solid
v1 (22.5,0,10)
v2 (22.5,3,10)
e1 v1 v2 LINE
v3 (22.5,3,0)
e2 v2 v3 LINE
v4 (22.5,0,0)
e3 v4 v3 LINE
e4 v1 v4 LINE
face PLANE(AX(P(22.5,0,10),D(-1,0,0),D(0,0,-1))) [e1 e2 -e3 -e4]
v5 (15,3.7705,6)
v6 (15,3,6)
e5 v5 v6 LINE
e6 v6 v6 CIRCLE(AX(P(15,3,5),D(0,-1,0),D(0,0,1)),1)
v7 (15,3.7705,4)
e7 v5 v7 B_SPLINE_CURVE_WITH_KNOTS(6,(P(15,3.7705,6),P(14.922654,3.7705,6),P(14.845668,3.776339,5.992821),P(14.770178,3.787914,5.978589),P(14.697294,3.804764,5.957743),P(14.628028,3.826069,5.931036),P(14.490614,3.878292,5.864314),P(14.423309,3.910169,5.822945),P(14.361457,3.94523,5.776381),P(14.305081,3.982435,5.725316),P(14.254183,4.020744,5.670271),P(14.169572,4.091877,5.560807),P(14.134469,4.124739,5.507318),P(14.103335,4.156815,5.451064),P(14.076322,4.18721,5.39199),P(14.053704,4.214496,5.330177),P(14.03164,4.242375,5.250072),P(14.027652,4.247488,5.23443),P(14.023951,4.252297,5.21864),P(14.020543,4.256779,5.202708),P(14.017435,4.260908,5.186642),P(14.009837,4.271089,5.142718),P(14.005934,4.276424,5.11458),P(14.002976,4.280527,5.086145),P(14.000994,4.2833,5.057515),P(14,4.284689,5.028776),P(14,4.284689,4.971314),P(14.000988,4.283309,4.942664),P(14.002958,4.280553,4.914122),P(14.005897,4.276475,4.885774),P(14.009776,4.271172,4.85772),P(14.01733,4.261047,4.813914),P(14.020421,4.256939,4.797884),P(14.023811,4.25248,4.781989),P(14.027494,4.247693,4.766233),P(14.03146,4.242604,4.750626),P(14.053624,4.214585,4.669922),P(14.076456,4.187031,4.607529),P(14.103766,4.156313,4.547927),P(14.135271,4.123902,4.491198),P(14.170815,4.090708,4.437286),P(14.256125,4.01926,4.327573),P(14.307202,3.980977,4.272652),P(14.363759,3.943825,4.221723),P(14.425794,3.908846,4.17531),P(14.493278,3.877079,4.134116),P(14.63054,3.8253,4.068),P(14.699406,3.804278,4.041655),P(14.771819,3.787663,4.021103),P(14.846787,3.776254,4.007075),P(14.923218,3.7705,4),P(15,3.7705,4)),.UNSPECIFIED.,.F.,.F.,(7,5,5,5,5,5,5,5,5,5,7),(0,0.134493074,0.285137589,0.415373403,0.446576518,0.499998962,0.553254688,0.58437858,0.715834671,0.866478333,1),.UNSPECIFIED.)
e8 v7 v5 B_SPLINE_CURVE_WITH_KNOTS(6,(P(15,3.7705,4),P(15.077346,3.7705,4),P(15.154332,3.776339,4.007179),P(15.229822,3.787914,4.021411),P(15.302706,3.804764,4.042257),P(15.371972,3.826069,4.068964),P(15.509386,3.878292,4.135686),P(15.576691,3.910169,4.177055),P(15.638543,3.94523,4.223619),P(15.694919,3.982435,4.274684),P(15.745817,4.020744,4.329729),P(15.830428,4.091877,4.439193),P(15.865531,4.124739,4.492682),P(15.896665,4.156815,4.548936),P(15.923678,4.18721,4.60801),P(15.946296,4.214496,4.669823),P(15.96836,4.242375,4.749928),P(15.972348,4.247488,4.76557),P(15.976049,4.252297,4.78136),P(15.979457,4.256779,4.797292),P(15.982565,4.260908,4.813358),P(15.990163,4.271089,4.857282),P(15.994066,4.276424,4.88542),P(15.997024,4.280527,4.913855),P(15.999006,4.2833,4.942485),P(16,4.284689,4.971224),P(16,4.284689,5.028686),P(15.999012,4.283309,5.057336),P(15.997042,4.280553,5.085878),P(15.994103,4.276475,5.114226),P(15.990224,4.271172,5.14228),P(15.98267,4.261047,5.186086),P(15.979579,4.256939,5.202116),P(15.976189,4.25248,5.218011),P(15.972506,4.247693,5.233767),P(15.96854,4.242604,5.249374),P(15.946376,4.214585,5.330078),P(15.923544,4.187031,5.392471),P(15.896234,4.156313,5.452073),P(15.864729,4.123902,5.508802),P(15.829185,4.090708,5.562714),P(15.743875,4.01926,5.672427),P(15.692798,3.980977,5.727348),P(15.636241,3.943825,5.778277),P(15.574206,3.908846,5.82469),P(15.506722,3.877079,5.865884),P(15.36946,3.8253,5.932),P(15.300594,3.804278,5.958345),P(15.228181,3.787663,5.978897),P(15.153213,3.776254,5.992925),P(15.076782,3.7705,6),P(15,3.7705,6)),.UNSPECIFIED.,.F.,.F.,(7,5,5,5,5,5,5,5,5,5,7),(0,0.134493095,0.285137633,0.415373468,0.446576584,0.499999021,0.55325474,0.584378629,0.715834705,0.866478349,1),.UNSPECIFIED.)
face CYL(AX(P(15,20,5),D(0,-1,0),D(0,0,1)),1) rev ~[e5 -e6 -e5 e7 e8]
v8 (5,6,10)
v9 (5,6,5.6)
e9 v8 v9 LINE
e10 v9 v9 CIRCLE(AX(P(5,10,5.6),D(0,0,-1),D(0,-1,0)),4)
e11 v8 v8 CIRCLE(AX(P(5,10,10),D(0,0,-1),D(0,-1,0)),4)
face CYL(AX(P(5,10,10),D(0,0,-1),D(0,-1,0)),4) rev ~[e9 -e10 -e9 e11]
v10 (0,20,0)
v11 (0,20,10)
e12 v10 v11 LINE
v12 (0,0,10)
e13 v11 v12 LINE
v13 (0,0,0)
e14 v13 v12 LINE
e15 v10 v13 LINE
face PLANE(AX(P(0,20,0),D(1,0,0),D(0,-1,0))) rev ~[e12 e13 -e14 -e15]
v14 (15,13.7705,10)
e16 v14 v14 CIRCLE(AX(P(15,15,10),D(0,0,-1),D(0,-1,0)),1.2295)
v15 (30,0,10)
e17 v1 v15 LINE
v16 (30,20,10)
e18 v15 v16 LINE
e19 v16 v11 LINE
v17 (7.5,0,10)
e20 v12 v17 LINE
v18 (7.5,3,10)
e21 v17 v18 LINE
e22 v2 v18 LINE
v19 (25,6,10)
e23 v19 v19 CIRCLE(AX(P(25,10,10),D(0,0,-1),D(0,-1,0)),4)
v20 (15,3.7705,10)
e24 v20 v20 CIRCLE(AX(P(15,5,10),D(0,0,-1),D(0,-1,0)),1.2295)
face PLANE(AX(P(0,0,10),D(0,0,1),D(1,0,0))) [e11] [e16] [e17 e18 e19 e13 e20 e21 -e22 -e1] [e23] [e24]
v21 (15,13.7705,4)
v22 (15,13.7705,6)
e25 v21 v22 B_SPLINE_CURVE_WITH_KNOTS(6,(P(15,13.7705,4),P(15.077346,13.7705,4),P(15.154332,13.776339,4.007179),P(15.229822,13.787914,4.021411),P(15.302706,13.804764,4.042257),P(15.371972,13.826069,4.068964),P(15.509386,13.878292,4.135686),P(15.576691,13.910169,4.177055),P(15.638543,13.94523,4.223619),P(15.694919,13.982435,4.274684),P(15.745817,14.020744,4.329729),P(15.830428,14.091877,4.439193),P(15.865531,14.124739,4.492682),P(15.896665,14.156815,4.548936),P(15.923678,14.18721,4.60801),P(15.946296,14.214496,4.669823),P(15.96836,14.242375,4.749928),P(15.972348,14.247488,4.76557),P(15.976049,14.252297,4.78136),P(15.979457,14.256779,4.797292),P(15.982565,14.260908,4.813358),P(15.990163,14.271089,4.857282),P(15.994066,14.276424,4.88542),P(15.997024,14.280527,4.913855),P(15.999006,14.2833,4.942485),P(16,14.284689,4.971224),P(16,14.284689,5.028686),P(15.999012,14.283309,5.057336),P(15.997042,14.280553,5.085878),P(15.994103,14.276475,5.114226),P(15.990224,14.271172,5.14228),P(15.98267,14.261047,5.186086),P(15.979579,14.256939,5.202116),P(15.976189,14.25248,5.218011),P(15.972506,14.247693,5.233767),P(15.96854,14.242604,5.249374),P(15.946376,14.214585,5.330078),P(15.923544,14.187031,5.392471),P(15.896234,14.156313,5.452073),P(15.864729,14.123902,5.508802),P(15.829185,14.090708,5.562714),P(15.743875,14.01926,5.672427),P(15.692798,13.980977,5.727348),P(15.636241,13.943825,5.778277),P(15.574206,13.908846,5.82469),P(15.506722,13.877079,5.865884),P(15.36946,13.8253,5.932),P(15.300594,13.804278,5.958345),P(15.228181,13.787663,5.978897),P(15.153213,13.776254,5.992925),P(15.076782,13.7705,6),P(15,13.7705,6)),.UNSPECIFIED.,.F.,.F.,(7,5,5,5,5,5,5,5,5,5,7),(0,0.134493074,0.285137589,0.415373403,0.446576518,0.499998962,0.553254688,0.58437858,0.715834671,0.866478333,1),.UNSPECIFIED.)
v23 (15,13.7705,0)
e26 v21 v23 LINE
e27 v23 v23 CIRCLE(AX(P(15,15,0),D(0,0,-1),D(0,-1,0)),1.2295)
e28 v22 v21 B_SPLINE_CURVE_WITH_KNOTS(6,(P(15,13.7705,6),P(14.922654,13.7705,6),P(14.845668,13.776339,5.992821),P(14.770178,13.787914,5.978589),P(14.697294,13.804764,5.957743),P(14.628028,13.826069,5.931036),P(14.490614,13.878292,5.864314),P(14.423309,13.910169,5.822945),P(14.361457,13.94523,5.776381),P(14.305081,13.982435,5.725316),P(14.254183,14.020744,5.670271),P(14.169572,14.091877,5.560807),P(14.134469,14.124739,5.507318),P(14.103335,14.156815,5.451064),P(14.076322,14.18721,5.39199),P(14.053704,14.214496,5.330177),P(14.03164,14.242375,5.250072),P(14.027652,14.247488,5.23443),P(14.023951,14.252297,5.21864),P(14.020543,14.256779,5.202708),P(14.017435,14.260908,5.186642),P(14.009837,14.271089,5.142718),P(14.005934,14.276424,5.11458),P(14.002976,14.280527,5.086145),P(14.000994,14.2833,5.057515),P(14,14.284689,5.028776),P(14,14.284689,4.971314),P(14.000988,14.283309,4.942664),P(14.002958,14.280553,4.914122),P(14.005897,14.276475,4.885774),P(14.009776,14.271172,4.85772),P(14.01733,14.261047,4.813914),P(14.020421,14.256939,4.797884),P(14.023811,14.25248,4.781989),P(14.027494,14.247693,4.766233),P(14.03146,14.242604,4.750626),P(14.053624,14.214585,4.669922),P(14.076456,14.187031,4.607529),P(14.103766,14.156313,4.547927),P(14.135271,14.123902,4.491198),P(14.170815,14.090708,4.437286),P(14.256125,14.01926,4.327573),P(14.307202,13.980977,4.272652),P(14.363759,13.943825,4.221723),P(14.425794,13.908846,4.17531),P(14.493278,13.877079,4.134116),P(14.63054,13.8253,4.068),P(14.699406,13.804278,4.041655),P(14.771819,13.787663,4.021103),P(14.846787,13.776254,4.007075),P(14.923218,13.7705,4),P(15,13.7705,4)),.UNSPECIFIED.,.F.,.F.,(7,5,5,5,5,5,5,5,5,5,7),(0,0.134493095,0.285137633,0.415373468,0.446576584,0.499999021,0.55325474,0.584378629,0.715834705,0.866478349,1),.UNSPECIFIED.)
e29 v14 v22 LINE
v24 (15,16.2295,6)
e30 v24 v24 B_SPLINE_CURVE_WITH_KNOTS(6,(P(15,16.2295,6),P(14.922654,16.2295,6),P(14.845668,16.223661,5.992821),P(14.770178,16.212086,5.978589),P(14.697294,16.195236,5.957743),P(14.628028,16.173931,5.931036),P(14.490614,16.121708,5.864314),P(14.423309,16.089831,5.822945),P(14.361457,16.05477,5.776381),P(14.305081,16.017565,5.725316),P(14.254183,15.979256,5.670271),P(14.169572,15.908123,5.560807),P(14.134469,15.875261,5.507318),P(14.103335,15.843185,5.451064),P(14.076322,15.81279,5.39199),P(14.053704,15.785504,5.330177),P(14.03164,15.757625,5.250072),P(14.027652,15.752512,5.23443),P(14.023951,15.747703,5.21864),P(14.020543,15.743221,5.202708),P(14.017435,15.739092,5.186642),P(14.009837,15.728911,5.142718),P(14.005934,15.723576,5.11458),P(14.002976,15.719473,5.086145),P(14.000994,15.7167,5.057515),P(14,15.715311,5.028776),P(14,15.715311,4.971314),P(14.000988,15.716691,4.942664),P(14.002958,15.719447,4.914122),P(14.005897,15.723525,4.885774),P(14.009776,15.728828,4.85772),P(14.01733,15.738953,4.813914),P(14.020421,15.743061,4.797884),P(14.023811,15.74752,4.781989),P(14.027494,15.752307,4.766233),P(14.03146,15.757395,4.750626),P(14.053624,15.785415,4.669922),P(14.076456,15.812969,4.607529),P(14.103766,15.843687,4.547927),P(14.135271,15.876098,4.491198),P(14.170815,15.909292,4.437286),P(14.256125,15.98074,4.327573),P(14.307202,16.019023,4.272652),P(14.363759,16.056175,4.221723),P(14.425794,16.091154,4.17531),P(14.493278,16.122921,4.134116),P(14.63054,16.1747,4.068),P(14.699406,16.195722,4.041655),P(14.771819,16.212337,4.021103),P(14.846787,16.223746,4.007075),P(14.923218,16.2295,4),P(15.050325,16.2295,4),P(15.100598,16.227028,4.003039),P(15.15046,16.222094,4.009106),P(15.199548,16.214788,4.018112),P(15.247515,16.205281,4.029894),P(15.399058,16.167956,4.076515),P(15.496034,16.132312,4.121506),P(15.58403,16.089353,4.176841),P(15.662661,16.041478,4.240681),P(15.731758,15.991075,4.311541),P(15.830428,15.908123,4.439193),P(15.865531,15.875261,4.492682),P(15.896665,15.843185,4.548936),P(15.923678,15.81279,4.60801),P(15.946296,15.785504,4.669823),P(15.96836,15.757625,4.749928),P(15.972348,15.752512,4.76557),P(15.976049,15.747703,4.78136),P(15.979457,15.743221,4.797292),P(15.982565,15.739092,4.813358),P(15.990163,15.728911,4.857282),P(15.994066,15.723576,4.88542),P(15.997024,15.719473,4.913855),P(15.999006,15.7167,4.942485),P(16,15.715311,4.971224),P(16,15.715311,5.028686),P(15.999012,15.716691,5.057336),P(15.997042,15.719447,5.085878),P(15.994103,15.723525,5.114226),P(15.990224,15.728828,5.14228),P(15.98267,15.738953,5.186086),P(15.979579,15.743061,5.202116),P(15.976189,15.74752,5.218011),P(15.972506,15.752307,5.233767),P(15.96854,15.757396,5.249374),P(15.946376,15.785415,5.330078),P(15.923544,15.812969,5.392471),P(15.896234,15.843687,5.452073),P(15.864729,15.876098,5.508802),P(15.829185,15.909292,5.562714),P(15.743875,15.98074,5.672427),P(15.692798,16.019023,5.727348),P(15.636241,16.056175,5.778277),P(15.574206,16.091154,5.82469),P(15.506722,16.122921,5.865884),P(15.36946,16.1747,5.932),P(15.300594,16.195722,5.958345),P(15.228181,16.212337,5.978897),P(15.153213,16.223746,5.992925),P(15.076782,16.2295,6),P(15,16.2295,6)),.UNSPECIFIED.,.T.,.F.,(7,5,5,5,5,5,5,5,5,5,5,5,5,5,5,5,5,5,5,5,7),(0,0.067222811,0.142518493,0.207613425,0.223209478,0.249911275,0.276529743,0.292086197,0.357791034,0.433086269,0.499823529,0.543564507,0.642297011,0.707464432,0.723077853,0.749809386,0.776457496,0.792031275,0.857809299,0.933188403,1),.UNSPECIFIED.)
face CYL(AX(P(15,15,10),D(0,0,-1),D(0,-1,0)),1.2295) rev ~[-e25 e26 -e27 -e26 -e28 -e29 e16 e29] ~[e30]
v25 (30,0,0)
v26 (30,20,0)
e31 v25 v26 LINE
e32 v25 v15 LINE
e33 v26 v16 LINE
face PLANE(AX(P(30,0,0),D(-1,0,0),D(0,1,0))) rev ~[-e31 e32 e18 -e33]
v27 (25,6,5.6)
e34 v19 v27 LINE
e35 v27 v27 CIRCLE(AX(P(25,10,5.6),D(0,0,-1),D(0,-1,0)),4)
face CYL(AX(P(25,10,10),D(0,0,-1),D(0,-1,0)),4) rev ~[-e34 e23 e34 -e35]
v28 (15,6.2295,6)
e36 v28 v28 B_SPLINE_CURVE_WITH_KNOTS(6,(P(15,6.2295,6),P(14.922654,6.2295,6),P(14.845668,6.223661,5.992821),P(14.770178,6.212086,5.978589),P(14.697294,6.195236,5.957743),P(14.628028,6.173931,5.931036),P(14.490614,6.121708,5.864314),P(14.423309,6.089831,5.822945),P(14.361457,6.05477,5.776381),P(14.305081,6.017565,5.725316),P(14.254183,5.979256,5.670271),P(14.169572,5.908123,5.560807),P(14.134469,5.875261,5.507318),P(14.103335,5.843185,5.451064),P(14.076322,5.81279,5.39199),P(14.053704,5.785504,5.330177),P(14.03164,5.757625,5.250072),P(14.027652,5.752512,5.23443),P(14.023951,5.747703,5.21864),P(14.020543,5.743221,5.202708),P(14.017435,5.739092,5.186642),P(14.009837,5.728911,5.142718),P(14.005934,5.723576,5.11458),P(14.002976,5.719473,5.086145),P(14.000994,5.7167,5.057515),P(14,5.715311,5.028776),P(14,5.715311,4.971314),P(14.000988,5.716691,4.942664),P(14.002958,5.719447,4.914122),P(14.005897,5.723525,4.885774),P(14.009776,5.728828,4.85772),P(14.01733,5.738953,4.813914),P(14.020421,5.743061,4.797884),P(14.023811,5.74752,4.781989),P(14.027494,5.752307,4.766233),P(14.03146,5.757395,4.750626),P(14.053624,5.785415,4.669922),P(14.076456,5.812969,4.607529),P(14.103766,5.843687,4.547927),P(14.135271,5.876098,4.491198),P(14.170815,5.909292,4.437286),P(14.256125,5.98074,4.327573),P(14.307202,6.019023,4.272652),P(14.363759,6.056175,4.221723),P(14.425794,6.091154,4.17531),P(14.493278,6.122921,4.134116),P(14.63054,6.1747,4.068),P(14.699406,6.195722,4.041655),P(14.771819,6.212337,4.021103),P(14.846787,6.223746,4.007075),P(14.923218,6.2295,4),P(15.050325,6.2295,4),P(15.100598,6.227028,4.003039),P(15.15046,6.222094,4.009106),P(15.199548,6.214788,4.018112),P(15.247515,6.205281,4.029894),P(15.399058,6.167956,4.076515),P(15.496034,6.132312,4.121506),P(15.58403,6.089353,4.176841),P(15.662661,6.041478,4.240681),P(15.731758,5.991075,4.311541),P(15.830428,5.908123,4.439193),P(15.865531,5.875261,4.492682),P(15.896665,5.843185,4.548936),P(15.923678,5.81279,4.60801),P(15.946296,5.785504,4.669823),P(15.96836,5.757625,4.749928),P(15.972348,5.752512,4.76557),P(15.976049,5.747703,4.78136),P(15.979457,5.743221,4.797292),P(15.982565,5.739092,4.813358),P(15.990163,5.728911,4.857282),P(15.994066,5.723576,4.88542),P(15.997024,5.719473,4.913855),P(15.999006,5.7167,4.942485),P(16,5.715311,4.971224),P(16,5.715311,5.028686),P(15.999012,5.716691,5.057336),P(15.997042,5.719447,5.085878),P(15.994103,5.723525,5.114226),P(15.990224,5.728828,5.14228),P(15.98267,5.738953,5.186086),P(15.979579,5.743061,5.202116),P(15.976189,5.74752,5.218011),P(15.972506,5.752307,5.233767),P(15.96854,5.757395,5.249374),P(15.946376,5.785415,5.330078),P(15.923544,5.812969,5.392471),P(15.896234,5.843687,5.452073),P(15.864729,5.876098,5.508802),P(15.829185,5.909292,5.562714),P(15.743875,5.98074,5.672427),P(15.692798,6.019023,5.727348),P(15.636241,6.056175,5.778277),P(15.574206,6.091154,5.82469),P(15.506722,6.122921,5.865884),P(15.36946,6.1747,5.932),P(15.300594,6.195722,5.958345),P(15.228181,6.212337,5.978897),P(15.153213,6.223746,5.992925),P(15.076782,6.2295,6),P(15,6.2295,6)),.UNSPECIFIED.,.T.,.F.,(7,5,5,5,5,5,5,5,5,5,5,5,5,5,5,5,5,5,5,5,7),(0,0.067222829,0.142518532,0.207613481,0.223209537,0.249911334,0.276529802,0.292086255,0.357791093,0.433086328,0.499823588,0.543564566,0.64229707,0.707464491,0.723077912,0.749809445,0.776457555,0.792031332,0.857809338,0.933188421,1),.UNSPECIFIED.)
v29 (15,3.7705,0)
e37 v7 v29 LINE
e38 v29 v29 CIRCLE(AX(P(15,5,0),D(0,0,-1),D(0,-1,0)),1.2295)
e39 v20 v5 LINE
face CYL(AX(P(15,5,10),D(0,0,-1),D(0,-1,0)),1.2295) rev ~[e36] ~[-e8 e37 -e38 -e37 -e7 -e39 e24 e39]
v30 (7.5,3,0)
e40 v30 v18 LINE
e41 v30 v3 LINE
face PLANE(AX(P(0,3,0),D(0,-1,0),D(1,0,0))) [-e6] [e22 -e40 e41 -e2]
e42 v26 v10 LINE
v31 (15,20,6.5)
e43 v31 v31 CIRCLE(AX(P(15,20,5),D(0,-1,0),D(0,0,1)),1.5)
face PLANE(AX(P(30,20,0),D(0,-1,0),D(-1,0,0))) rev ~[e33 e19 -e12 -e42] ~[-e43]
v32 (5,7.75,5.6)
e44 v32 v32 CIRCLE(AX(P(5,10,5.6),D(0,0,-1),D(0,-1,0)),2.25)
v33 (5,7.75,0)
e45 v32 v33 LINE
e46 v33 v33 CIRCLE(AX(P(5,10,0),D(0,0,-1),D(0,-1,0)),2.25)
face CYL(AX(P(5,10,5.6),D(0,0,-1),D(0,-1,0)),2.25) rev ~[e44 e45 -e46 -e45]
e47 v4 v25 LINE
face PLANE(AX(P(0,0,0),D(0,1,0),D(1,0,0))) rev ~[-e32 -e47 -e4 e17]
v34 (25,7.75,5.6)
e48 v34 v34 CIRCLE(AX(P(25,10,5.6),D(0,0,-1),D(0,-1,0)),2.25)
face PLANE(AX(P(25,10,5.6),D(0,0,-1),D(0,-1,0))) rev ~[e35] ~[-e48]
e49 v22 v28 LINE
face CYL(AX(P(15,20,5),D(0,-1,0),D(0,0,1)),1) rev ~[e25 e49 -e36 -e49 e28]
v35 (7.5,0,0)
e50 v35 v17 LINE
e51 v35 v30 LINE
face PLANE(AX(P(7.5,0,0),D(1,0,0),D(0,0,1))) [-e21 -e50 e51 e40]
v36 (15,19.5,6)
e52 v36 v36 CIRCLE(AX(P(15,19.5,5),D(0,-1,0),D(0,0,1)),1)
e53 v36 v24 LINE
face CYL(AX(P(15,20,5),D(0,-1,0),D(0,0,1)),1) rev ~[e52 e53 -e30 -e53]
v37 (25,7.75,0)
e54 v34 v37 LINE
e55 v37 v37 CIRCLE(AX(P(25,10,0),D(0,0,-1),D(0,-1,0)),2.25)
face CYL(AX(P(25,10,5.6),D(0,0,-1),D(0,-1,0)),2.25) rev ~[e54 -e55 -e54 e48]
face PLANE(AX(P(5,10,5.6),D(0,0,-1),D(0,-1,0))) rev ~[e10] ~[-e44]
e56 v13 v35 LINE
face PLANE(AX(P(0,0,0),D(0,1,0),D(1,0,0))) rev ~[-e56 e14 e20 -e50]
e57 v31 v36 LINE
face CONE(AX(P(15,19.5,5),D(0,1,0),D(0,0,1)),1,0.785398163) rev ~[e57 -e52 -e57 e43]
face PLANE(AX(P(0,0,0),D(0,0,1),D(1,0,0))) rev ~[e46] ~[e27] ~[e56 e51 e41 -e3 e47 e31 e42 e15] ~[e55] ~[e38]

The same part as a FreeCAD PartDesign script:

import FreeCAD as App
import Part
import Sketcher
Q = App.Units.Quantity


def edges_at(feature, points):
    """Names of the edges that pass closest to the given points."""
    edges = feature.Shape.Edges
    near = lambda p: min(range(len(edges)), key=lambda i: edges[i].distToShape(Part.Vertex(*p))[0])
    return sorted({f"Edge{near(p) + 1}" for p in points})


def add_polygon(sketch, points):
    """Adds a closed chain of lines whose ends are joined by coincident constraints."""
    first, n = sketch.GeometryCount, len(points)
    for a, b in zip(points, points[1:] + points[:1]):
        sketch.addGeometry(Part.LineSegment(App.Vector(*a, 0), App.Vector(*b, 0)), False)
    for i in range(n):
        sketch.addConstraint(Sketcher.Constraint("Coincident", first + i, 2, first + (i + 1) % n, 1))

doc = App.newDocument("Part")
params = doc.addObject("Spreadsheet::Sheet", "Params")
for row, (alias, value) in enumerate([
    ("sketch1_width", "30 mm"),
    ("sketch1_height", "20 mm"),
    ("pad1_length", "10 mm"),
    ("sketch2_diameter", "4.5 mm"),
    ("hole_diameter", "4.5 mm"),
    ("hole_cbore_diameter", "8 mm"),
    ("hole_cbore_depth", "4.4 mm"),
    ("hole2_diameter", "2.459 mm"),
    ("sketch4_diameter", "2 mm"),
    ("hole3_diameter", "2 mm"),
    ("chamfer_size", "0.5 mm"),
    ("sketch5_width", "15 mm"),
    ("sketch5_height", "10 mm"),
    ("pocket1_length", "3 mm"),
], start=1):
    params.set(f"A{row}", alias)
    params.set(f"B{row}", "=" + value)
    params.setAlias(f"B{row}", alias)

body = doc.addObject("PartDesign::Body", "Body")

# Sketch on XY plane
sketch1 = body.newObject("Sketcher::SketchObject", "Sketch")
sketch1.AttachmentSupport = (doc.getObject("XY_Plane"), [""])
sketch1.MapMode = "FlatFace"
add_polygon(sketch1, [(0, 20), (0, 0), (30, 0), (30, 20)])  # lines 0-3
sketch1.addConstraint([
    Sketcher.Constraint("Vertical", 0),
    Sketcher.Constraint("Horizontal", 1),
    Sketcher.Constraint("Vertical", 2),
    Sketcher.Constraint("Horizontal", 3),
    Sketcher.Constraint("Coincident", 0, 2, -1, 1),
    Sketcher.Constraint("DistanceX", 1, 1, 1, 2, Q("30 mm")),
    Sketcher.Constraint("DistanceY", 0, 2, 0, 1, Q("20 mm")),
])
sketch1.setExpression("Constraints[9]", "Params.sketch1_width")
sketch1.setExpression("Constraints[10]", "Params.sketch1_height")
pad1 = body.newObject("PartDesign::Pad", "Pad")
pad1.Profile = sketch1
pad1.setExpression("Length", "Params.pad1_length")

# Sketch on XY plane
sketch2 = body.newObject("Sketcher::SketchObject", "Sketch001")
sketch2.AttachmentSupport = (doc.getObject("XY_Plane"), [""])
sketch2.MapMode = "FlatFace"
sketch2.AttachmentOffset = App.Placement(App.Vector(0, 0, 10), App.Rotation())
sketch2.addGeometry([
    Part.Circle(App.Vector(5, 10, 0), App.Vector(0, 0, 1), 2.2),
    Part.Circle(App.Vector(25, 10, 0), App.Vector(0, 0, 1), 2.2),
], False)
sketch2.addConstraint([
    Sketcher.Constraint("Equal", 0, 1),
    Sketcher.Constraint("Horizontal", 0, 3, 1, 3),
    Sketcher.Constraint("Diameter", 0, Q("4.5 mm")),
    Sketcher.Constraint("DistanceX", -1, 1, 0, 3, Q("5 mm")),
    Sketcher.Constraint("DistanceY", -1, 1, 0, 3, Q("10 mm")),
    Sketcher.Constraint("DistanceX", -1, 1, 1, 3, Q("25 mm")),
])
sketch2.setExpression("Constraints[2]", "Params.sketch2_diameter")
doc.recompute()
hole = body.newObject("PartDesign::Hole", "Hole")
hole.Profile = sketch2
hole.ThreadType = "None"
hole.setExpression("Diameter", "Params.hole_diameter")
hole.DepthType = "ThroughAll"
hole.HoleCutType = "Counterbore"
hole.setExpression("HoleCutDiameter", "Params.hole_cbore_diameter")
hole.setExpression("HoleCutDepth", "Params.hole_cbore_depth")

# Sketch on XY plane
sketch3 = body.newObject("Sketcher::SketchObject", "Sketch002")
sketch3.AttachmentSupport = (doc.getObject("XY_Plane"), [""])
sketch3.MapMode = "FlatFace"
sketch3.AttachmentOffset = App.Placement(App.Vector(0, 0, 10), App.Rotation())
sketch3.addGeometry([
    Part.Circle(App.Vector(15, 15, 0), App.Vector(0, 0, 1), 1.2),
    Part.Circle(App.Vector(15, 5, 0), App.Vector(0, 0, 1), 1.2),
], False)
sketch3.addConstraint([
    Sketcher.Constraint("Equal", 0, 1),
    Sketcher.Constraint("Vertical", 0, 3, 1, 3),
    Sketcher.Constraint("Diameter", 0, Q("2.459 mm")),
    Sketcher.Constraint("DistanceX", -1, 1, 0, 3, Q("15 mm")),
    Sketcher.Constraint("DistanceY", -1, 1, 0, 3, Q("15 mm")),
    Sketcher.Constraint("DistanceY", -1, 1, 1, 3, Q("5 mm")),
])
doc.recompute()
hole2 = body.newObject("PartDesign::Hole", "Hole001")
hole2.Profile = sketch3
hole2.ThreadType = "None"
hole2.setExpression("Diameter", "Params.hole2_diameter")
hole2.DepthType = "ThroughAll"

# Sketch on XZ plane
sketch4 = body.newObject("Sketcher::SketchObject", "Sketch003")
sketch4.AttachmentSupport = (doc.getObject("XZ_Plane"), [""])
sketch4.MapMode = "FlatFace"
sketch4.AttachmentOffset = App.Placement(App.Vector(0, 0, -20), App.Rotation())
sketch4.addGeometry(Part.Circle(App.Vector(15, 5, 0), App.Vector(0, 0, 1), 1), False)
sketch4.addConstraint([
    Sketcher.Constraint("Diameter", 0, Q("2 mm")),
    Sketcher.Constraint("DistanceX", -1, 1, 0, 3, Q("15 mm")),
    Sketcher.Constraint("DistanceY", -1, 1, 0, 3, Q("5 mm")),
])
sketch4.setExpression("Constraints[0]", "Params.sketch4_diameter")
doc.recompute()
hole3 = body.newObject("PartDesign::Hole", "Hole002")
hole3.Profile = sketch4
hole3.ThreadType = "None"
hole3.setExpression("Diameter", "Params.hole3_diameter")
hole3.DepthType = "ThroughAll"
hole3.Reversed = True
doc.recompute()

chamfer = body.newObject("PartDesign::Chamfer", "Chamfer")
chamfer.Base = (hole3, edges_at(hole3, [(15, 20, 4), (15, 0, 4)]))
chamfer.setExpression("Size", "Params.chamfer_size")

# Sketch on XZ plane
sketch5 = body.newObject("Sketcher::SketchObject", "Sketch004")
sketch5.AttachmentSupport = (doc.getObject("XZ_Plane"), [""])
sketch5.MapMode = "FlatFace"
add_polygon(sketch5, [(22, 0), (22, 10), (8, 10), (8, 0)])  # lines 0-3
sketch5.addConstraint([
    Sketcher.Constraint("Vertical", 0),
    Sketcher.Constraint("Horizontal", 1),
    Sketcher.Constraint("Vertical", 2),
    Sketcher.Constraint("Horizontal", 3),
    Sketcher.Constraint("PointOnObject", 2, 2, -1),
    Sketcher.Constraint("DistanceX", 1, 2, 1, 1, Q("15 mm")),
    Sketcher.Constraint("DistanceY", 0, 1, 0, 2, Q("10 mm")),
    Sketcher.Constraint("DistanceX", -1, 1, 0, 2, Q("22.5 mm")),
])
sketch5.setExpression("Constraints[9]", "Params.sketch5_width")
sketch5.setExpression("Constraints[10]", "Params.sketch5_height")
pocket1 = body.newObject("PartDesign::Pocket", "Pocket")
pocket1.Profile = sketch5
pocket1.setExpression("Length", "Params.pocket1_length")

doc.recompute()
